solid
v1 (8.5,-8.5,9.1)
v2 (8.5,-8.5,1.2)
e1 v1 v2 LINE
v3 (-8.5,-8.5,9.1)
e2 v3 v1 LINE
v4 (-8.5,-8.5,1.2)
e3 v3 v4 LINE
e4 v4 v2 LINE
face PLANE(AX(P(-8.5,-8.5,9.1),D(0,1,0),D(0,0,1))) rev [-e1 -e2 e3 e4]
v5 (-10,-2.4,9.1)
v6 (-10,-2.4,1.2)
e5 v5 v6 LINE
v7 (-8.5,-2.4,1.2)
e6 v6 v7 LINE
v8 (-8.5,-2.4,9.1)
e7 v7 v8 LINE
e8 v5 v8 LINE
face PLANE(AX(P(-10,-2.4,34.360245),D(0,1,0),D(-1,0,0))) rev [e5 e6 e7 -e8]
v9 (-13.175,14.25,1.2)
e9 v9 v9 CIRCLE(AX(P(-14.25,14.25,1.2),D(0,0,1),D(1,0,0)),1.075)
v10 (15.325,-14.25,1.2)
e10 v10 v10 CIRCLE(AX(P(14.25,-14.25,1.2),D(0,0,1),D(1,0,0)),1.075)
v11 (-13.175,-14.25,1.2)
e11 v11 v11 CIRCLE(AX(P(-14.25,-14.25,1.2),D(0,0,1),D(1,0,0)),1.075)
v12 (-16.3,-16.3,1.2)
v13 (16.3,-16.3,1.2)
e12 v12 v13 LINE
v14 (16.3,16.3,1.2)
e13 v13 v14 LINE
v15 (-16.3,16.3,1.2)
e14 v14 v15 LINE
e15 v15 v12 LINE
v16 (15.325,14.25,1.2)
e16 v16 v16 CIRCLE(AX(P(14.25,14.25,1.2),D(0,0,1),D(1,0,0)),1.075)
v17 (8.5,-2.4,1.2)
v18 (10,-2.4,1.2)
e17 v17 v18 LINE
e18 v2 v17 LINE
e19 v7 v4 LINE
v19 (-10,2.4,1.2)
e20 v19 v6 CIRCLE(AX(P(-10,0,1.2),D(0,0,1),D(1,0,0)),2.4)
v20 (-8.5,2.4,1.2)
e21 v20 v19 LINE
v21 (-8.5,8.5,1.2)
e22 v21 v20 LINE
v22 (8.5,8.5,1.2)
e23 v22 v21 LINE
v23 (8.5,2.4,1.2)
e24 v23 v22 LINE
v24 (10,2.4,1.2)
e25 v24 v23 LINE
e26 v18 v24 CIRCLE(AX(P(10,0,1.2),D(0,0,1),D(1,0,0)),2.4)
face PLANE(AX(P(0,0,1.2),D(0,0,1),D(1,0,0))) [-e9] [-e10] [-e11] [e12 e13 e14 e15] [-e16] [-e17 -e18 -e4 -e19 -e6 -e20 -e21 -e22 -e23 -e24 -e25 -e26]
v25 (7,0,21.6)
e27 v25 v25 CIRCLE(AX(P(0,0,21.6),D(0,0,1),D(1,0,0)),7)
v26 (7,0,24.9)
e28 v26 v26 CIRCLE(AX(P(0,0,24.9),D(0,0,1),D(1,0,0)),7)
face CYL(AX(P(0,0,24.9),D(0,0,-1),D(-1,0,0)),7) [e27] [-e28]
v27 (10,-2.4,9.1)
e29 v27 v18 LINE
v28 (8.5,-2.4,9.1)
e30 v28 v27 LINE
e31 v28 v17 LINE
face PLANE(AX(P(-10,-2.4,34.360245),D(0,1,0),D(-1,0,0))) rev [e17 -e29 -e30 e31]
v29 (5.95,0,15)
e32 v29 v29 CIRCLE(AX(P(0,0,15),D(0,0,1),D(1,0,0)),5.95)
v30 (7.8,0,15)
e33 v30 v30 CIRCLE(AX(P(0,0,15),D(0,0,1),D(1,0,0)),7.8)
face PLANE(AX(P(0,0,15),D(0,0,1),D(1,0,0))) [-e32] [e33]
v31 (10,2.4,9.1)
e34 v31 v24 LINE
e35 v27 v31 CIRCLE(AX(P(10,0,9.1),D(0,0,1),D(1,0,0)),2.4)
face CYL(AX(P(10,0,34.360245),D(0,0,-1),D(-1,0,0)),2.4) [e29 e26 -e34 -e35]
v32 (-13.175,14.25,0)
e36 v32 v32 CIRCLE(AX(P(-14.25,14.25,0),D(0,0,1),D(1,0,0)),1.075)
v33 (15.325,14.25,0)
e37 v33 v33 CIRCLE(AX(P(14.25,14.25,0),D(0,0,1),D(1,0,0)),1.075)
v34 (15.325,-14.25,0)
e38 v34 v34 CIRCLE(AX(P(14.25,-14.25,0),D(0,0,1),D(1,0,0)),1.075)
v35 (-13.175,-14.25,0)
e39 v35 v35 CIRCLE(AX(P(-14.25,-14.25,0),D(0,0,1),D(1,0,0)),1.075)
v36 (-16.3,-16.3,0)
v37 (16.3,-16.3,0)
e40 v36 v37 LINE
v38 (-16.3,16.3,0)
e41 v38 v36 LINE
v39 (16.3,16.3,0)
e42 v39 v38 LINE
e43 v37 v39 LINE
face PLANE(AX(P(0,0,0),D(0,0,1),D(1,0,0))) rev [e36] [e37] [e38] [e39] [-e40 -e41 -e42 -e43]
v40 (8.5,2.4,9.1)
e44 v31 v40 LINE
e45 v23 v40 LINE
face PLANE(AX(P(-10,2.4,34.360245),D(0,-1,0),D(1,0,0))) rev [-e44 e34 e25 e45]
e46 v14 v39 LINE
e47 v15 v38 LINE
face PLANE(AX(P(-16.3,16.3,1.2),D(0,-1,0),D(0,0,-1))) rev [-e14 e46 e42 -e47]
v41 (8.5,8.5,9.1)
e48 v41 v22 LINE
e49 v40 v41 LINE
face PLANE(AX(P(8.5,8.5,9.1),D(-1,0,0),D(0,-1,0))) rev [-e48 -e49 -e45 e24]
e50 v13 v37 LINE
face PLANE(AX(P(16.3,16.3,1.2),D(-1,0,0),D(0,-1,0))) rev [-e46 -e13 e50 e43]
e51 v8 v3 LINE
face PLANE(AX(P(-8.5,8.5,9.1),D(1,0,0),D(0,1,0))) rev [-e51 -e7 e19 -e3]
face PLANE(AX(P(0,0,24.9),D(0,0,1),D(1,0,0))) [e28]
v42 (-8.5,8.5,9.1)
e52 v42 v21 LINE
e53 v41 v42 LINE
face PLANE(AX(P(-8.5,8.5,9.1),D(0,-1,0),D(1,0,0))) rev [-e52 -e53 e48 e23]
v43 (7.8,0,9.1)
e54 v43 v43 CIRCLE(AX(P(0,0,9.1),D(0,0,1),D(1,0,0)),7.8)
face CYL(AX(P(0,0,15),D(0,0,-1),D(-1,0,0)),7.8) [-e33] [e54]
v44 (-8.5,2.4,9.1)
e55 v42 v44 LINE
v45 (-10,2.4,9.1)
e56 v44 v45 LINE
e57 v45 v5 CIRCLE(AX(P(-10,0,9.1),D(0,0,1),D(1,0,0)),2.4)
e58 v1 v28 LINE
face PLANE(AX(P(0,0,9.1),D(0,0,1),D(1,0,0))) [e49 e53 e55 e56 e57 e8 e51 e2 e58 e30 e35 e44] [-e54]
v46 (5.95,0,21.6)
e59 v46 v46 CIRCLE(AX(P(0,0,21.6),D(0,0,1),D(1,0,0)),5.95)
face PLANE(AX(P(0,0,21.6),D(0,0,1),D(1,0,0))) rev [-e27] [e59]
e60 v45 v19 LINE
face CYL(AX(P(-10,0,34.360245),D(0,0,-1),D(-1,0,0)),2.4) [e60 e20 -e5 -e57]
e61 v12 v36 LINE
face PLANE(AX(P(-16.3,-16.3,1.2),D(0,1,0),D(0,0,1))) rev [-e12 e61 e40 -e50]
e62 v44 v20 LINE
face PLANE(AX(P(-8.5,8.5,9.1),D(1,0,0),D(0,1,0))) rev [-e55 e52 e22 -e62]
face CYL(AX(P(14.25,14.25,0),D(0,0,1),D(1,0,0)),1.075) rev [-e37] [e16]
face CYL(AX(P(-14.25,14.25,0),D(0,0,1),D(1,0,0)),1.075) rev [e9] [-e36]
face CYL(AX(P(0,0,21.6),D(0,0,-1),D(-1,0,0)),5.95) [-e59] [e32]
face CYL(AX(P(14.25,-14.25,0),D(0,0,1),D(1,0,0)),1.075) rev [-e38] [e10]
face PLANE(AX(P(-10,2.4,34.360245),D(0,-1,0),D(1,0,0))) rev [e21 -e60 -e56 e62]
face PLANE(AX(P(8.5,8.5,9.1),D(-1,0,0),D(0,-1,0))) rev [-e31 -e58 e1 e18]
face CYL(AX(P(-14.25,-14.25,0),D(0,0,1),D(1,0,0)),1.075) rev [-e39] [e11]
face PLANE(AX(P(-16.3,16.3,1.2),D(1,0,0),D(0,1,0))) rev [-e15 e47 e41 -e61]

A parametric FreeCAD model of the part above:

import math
import FreeCAD as App
import Part
import Sketcher
from FreeCAD import Vector


def add_polygon(sketch, points):
    """Adds a closed chain of lines whose ends are joined by coincident constraints."""
    first, n = sketch.GeometryCount, len(points)
    for a, b in zip(points, points[1:] + points[:1]):
        sketch.addGeometry(Part.LineSegment(App.Vector(*a, 0), App.Vector(*b, 0)), False)
    for i in range(n):
        sketch.addConstraint(Sketcher.Constraint("Coincident", first + i, 2, first + (i + 1) % n, 1))

doc = App.newDocument("Part")
body = doc.addObject("PartDesign::Body", "Body")

# Sketch on XY plane
sketch1 = doc.addObject("Sketcher::SketchObject", "Sketch")
body.addObject(sketch1)
sketch1.AttachmentSupport = (doc.XY_Plane, [""])
sketch1.MapMode = "FlatFace"
add_polygon(sketch1, [(-16, 16), (-16, -16), (16, -16), (16, 16)])  # lines 0-3
sketch1.addConstraint([
    Sketcher.Constraint("Vertical", 0),
    Sketcher.Constraint("Horizontal", 1),
    Sketcher.Constraint("Vertical", 2),
    Sketcher.Constraint("Horizontal", 3),
    Sketcher.Constraint("Symmetric", 0, 2, 2, 2, -1, 1),
    Sketcher.Constraint("Equal", 3, 0),
    Sketcher.Constraint("DistanceX", 1, 1, 1, 2, 32.6),
])
pad1 = doc.addObject("PartDesign::Pad", "Pad")
body.addObject(pad1)
pad1.Profile = sketch1
pad1.Length = 1.2

# Sketch on XY plane
sketch2 = doc.addObject("Sketcher::SketchObject", "Sketch001")
body.addObject(sketch2)
sketch2.AttachmentSupport = (doc.XY_Plane, [""])
sketch2.MapMode = "FlatFace"
sketch2.AttachmentOffset = App.Placement(Vector(0, 0, 1.2), App.Rotation())
sketch2.addGeometry([
    Part.Circle(Vector(-14.2, 14.2, 0), Vector(0, 0, 1), 1.1),
    Part.Circle(Vector(14.2, 14.2, 0), Vector(0, 0, 1), 1.1),
    Part.Circle(Vector(14.2, -14.2, 0), Vector(0, 0, 1), 1.1),
    Part.Circle(Vector(-14.2, -14.2, 0), Vector(0, 0, 1), 1.1),
], False)
sketch2.addConstraint([
    Sketcher.Constraint("Equal", 0, 1),
    Sketcher.Constraint("Equal", 1, 2),
    Sketcher.Constraint("Equal", 2, 3),
    Sketcher.Constraint("Symmetric", 0, 3, 2, 3, -1, 1),
    Sketcher.Constraint("Symmetric", 1, 3, 3, 3, -1, 1),
    Sketcher.Constraint("Symmetric", 0, 3, 1, 3, -2),
    Sketcher.Constraint("Diameter", 0, 2.15),
    Sketcher.Constraint("DistanceX", 0, 3, 1, 3, 28.5),
    Sketcher.Constraint("DistanceY", 2, 3, 1, 3, 28.5),
])
pocket1 = doc.addObject("PartDesign::Pocket", "Pocket")
body.addObject(pocket1)
pocket1.Profile = sketch2
pocket1.Type = "ThroughAll"

# Sketch on XY plane
sketch3 = doc.addObject("Sketcher::SketchObject", "Sketch002")
body.addObject(sketch3)
sketch3.AttachmentSupport = (doc.XY_Plane, [""])
sketch3.MapMode = "FlatFace"
sketch3.AttachmentOffset = App.Placement(Vector(0, 0, 1.2), App.Rotation())
add_polygon(sketch3, [(-8, 8), (-8, -8), (8, -8), (8, 8)])  # lines 0-3
sketch3.addConstraint([
    Sketcher.Constraint("Vertical", 0),
    Sketcher.Constraint("Horizontal", 1),
    Sketcher.Constraint("Vertical", 2),
    Sketcher.Constraint("Horizontal", 3),
    Sketcher.Constraint("Symmetric", 0, 2, 2, 2, -1, 1),
    Sketcher.Constraint("Equal", 3, 0),
    Sketcher.Constraint("DistanceX", 1, 1, 1, 2, 17.0),
])
pad2 = doc.addObject("PartDesign::Pad", "Pad001")
body.addObject(pad2)
pad2.Profile = sketch3
pad2.Length = 7.9

# Sketch on XY plane
sketch4 = doc.addObject("Sketcher::SketchObject", "Sketch003")
body.addObject(sketch4)
sketch4.AttachmentSupport = (doc.XY_Plane, [""])
sketch4.MapMode = "FlatFace"
sketch4.AttachmentOffset = App.Placement(Vector(0, 0, 1.2), App.Rotation())
sketch4.addGeometry([
    Part.LineSegment(Vector(10, 2.4, 0), Vector(-10, 2.4, 0)),
    Part.ArcOfCircle(Part.Circle(Vector(-10, 0, 0), Vector(0, 0, 1), 2.4), math.radians(90), math.radians(270)),
    Part.LineSegment(Vector(-10, -2.4, 0), Vector(10, -2.4, 0)),
    Part.ArcOfCircle(Part.Circle(Vector(10, 0, 0), Vector(0, 0, 1), 2.4), math.radians(-90), math.radians(90)),
], False)
sketch4.addConstraint([
    Sketcher.Constraint("Tangent", 0, 2, 1, 1),
    Sketcher.Constraint("Tangent", 1, 2, 2, 1),
    Sketcher.Constraint("Tangent", 2, 2, 3, 1),
    Sketcher.Constraint("Tangent", 3, 2, 0, 1),
    Sketcher.Constraint("Horizontal", 0),
    Sketcher.Constraint("Horizontal", 2),
    Sketcher.Constraint("Symmetric", 1, 3, 3, 3, -1, 1),
    Sketcher.Constraint("Radius", 1, 2.4),
    Sketcher.Constraint("DistanceX", 0, 2, 0, 1, 20.0),
])
pad3 = doc.addObject("PartDesign::Pad", "Pad002")
body.addObject(pad3)
pad3.Profile = sketch4
pad3.Length = 7.9

# Sketch on XY plane
sketch5 = doc.addObject("Sketcher::SketchObject", "Sketch004")
body.addObject(sketch5)
sketch5.AttachmentSupport = (doc.XY_Plane, [""])
sketch5.MapMode = "FlatFace"
sketch5.AttachmentOffset = App.Placement(Vector(0, 0, 9.1), App.Rotation())
sketch5.addGeometry(Part.Circle(Vector(0, 0, 0), Vector(0, 0, 1), 8), False)
sketch5.addConstraint([
    Sketcher.Constraint("Coincident", 0, 3, -1, 1),
    Sketcher.Constraint("Diameter", 0, 15.6),
])
pad4 = doc.addObject("PartDesign::Pad", "Pad003")
body.addObject(pad4)
pad4.Profile = sketch5
pad4.Length = 5.9

# Sketch on XY plane
sketch6 = doc.addObject("Sketcher::SketchObject", "Sketch005")
body.addObject(sketch6)
sketch6.AttachmentSupport = (doc.XY_Plane, [""])
sketch6.MapMode = "FlatFace"
sketch6.AttachmentOffset = App.Placement(Vector(0, 0, 15), App.Rotation())
sketch6.addGeometry(Part.Circle(Vector(0, 0, 0), Vector(0, 0, 1), 6), False)
sketch6.addConstraint([
    Sketcher.Constraint("Coincident", 0, 3, -1, 1),
    Sketcher.Constraint("Diameter", 0, 11.9),
])
pad5 = doc.addObject("PartDesign::Pad", "Pad004")
body.addObject(pad5)
pad5.Profile = sketch6
pad5.Length = 6.6

# Sketch on XY plane
sketch7 = doc.addObject("Sketcher::SketchObject", "Sketch006")
body.addObject(sketch7)
sketch7.AttachmentSupport = (doc.XY_Plane, [""])
sketch7.MapMode = "FlatFace"
sketch7.AttachmentOffset = App.Placement(Vector(0, 0, 21.6), App.Rotation())
sketch7.addGeometry(Part.Circle(Vector(0, 0, 0), Vector(0, 0, 1), 7), False)
sketch7.addConstraint([
    Sketcher.Constraint("Coincident", 0, 3, -1, 1),
    Sketcher.Constraint("Diameter", 0, 14.0),
])
pad6 = doc.addObject("PartDesign::Pad", "Pad005")
body.addObject(pad6)
pad6.Profile = sketch7
pad6.Length = 3.3

doc.recompute()
